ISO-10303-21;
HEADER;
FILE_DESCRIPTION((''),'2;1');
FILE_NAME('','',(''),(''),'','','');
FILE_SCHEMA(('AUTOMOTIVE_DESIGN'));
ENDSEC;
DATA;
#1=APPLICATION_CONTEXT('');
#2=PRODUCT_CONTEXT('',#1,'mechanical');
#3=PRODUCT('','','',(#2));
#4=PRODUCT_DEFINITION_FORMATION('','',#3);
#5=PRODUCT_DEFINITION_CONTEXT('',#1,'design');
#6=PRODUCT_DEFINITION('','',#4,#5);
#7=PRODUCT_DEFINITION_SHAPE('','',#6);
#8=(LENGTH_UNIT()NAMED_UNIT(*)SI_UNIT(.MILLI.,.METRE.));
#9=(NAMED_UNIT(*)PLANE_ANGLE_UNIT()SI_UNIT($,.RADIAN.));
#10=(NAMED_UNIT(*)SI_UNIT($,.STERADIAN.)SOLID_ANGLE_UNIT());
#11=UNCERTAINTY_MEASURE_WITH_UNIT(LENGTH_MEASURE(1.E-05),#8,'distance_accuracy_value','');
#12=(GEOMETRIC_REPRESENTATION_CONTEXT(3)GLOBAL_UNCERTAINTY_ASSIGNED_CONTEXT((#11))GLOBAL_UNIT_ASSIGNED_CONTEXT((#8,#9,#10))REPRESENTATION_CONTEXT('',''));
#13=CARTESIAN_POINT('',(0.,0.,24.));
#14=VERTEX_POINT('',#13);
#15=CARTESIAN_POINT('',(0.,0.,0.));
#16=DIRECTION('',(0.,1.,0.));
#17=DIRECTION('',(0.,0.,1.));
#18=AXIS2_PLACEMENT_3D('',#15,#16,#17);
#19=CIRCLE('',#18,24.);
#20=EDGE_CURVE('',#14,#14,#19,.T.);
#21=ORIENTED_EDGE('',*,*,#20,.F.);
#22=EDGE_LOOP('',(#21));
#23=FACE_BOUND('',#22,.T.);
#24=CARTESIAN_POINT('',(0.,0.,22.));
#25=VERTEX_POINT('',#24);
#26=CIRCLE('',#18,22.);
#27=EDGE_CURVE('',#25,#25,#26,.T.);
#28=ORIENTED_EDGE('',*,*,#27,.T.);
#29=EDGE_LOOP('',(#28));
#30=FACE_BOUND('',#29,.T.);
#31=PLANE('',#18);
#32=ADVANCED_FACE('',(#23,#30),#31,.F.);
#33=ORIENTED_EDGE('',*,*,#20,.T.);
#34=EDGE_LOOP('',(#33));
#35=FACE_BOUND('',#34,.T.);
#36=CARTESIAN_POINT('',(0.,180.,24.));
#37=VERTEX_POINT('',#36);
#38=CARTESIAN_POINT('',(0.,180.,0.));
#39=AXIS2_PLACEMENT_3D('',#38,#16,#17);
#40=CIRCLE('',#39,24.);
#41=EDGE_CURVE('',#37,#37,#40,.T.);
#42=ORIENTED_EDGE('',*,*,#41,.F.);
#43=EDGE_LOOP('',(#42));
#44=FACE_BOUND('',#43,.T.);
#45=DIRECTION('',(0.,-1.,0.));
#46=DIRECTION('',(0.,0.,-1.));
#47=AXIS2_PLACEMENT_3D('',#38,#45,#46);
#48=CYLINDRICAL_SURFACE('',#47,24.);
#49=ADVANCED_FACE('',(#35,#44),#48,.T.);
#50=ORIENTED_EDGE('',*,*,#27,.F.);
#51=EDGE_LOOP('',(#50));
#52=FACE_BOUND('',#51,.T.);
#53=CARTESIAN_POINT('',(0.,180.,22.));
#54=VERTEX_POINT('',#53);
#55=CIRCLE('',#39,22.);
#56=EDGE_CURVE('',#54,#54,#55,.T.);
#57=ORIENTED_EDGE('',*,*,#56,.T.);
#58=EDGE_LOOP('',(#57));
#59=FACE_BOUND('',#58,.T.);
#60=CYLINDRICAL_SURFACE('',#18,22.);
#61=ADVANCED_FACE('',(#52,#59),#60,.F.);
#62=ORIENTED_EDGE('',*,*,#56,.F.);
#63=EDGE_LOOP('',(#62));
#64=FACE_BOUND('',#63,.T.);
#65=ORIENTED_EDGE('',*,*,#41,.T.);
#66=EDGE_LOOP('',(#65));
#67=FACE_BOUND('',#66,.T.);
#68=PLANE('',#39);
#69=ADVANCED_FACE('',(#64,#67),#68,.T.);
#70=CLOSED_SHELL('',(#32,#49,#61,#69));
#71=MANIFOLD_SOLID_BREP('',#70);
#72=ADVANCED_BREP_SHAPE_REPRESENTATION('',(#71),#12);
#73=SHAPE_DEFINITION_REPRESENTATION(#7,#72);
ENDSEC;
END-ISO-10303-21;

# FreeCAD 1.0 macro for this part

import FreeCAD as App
import Part
import Sketcher
Q = App.Units.Quantity

doc = App.newDocument("Part")
body = doc.addObject("PartDesign::Body", "Body")

sketch1 = body.newObject("Sketcher::SketchObject", "Sketch")
sketch1.AttachmentSupport = (doc.getObject("XZ_Plane"), [""])
sketch1.MapMode = "FlatFace"
sketch1.addGeometry(Part.Circle(App.Vector(0, 0, 0), App.Vector(0, 0, 1), 24), False)
sketch1.addConstraint([
    Sketcher.Constraint("Coincident", 0, 3, -1, 1),
    Sketcher.Constraint("Diameter", 0, Q("48 mm")),
])
pad1 = body.newObject("PartDesign::Pad", "Pad")
pad1.Profile = sketch1
pad1.Length = 180
pad1.Reversed = True

sketch2 = body.newObject("Sketcher::SketchObject", "Sketch001")
sketch2.AttachmentSupport = (doc.getObject("XZ_Plane"), [""])
sketch2.MapMode = "FlatFace"
sketch2.AttachmentOffset = App.Placement(App.Vector(0, 0, -180), App.Rotation())
sketch2.addGeometry(Part.Circle(App.Vector(0, 0, 0), App.Vector(0, 0, 1), 22), False)
sketch2.addConstraint([
    Sketcher.Constraint("Coincident", 0, 3, -1, 1),
    Sketcher.Constraint("Diameter", 0, Q("44 mm")),
])
pocket1 = body.newObject("PartDesign::Pocket", "Pocket")
pocket1.Profile = sketch2
pocket1.Length = 180
pocket1.Reversed = True

doc.recompute()
